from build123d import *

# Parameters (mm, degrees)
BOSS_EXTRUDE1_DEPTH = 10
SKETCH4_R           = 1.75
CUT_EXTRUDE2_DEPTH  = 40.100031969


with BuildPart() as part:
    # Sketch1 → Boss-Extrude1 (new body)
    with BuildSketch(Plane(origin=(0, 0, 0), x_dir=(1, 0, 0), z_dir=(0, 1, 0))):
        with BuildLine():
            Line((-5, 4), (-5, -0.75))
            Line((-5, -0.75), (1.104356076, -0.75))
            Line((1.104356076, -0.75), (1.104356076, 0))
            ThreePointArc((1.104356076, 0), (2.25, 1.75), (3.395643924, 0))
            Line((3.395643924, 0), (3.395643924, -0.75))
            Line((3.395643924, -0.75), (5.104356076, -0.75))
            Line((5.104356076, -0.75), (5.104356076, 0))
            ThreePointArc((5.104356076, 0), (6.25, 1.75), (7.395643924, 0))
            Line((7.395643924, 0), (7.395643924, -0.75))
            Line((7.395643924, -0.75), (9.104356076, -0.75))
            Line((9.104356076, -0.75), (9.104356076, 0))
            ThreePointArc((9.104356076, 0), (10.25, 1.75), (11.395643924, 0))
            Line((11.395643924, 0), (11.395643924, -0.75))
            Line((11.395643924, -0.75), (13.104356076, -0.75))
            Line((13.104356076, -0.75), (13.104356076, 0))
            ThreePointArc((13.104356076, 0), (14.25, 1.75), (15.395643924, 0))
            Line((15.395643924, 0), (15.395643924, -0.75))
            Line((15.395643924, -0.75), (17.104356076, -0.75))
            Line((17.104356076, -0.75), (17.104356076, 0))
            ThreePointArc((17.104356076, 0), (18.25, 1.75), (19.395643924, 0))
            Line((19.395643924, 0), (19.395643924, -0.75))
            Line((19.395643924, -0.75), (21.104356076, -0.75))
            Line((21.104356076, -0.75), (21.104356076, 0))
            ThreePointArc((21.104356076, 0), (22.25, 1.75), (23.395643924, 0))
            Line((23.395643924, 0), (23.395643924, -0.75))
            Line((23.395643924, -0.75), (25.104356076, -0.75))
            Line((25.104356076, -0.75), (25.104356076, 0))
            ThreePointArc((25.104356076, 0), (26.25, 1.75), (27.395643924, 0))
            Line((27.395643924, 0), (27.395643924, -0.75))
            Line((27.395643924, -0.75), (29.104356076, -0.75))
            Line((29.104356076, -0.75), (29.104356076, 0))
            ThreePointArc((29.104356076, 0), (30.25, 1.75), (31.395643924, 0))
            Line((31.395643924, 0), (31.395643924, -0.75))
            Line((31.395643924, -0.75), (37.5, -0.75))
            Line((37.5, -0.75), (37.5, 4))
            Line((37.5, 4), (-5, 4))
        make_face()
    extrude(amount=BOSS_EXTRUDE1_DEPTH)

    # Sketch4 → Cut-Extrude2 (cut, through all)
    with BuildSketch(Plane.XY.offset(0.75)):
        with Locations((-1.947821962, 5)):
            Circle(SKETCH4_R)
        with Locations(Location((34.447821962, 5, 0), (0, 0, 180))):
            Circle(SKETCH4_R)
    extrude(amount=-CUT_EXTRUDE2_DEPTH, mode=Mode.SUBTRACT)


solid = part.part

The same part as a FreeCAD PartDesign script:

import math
import FreeCAD as App
import Part
import Sketcher
from FreeCAD import Vector
Q = App.Units.Quantity

doc = App.newDocument("Part")
body = doc.addObject("PartDesign::Body", "Body")

sketch1 = doc.addObject("Sketcher::SketchObject", "Sketch")
body.addObject(sketch1)
sketch1.AttachmentSupport = (doc.XZ_Plane, [""])
sketch1.MapMode = "FlatFace"
sketch1.addGeometry(Part.LineSegment(Vector(-5, -4, 0), Vector(-5, 0.8, 0)), False)
sketch1.addGeometry(Part.LineSegment(Vector(-5, 0.8, 0), Vector(1.1, 0.8, 0)), False)
sketch1.addGeometry(Part.LineSegment(Vector(1.1, 0.8, 0), Vector(1.1, 0, 0)), False)
sketch1.addGeometry(Part.ArcOfCircle(Part.Circle(Vector(2.2, -0.5, 0), Vector(0, 0, 1), 1.2), math.radians(156), math.radians(384)), False)
sketch1.addGeometry(Part.LineSegment(Vector(3.4, 0, 0), Vector(3.4, 0.8, 0)), False)
sketch1.addGeometry(Part.LineSegment(Vector(3.4, 0.8, 0), Vector(5.1, 0.8, 0)), False)
sketch1.addGeometry(Part.LineSegment(Vector(5.1, 0.8, 0), Vector(5.1, 0, 0)), False)
sketch1.addGeometry(Part.ArcOfCircle(Part.Circle(Vector(6.2, -0.5, 0), Vector(0, 0, 1), 1.2), math.radians(156), math.radians(384)), False)
sketch1.addGeometry(Part.LineSegment(Vector(7.4, 0, 0), Vector(7.4, 0.8, 0)), False)
sketch1.addGeometry(Part.LineSegment(Vector(7.4, 0.8, 0), Vector(9.1, 0.8, 0)), False)
sketch1.addGeometry(Part.LineSegment(Vector(9.1, 0.8, 0), Vector(9.1, 0, 0)), False)
sketch1.addGeometry(Part.ArcOfCircle(Part.Circle(Vector(10.2, -0.5, 0), Vector(0, 0, 1), 1.2), math.radians(156), math.radians(384)), False)
sketch1.addGeometry(Part.LineSegment(Vector(11.4, 0, 0), Vector(11.4, 0.8, 0)), False)
sketch1.addGeometry(Part.LineSegment(Vector(11.4, 0.8, 0), Vector(13.1, 0.8, 0)), False)
sketch1.addGeometry(Part.LineSegment(Vector(13.1, 0.8, 0), Vector(13.1, 0, 0)), False)
sketch1.addGeometry(Part.ArcOfCircle(Part.Circle(Vector(14.2, -0.5, 0), Vector(0, 0, 1), 1.2), math.radians(156), math.radians(384)), False)
sketch1.addGeometry(Part.LineSegment(Vector(15.4, 0, 0), Vector(15.4, 0.8, 0)), False)
sketch1.addGeometry(Part.LineSegment(Vector(15.4, 0.8, 0), Vector(17.1, 0.8, 0)), False)
sketch1.addGeometry(Part.LineSegment(Vector(17.1, 0.8, 0), Vector(17.1, 0, 0)), False)
sketch1.addGeometry(Part.ArcOfCircle(Part.Circle(Vector(18.2, -0.5, 0), Vector(0, 0, 1), 1.2), math.radians(156), math.radians(384)), False)
sketch1.addGeometry(Part.LineSegment(Vector(19.4, 0, 0), Vector(19.4, 0.8, 0)), False)
sketch1.addGeometry(Part.LineSegment(Vector(19.4, 0.8, 0), Vector(21.1, 0.8, 0)), False)
sketch1.addGeometry(Part.LineSegment(Vector(21.1, 0.8, 0), Vector(21.1, 0, 0)), False)
sketch1.addGeometry(Part.ArcOfCircle(Part.Circle(Vector(22.2, -0.5, 0), Vector(0, 0, 1), 1.2), math.radians(156), math.radians(384)), False)
sketch1.addGeometry(Part.LineSegment(Vector(23.4, 0, 0), Vector(23.4, 0.8, 0)), False)
sketch1.addGeometry(Part.LineSegment(Vector(23.4, 0.8, 0), Vector(25.1, 0.8, 0)), False)
sketch1.addGeometry(Part.LineSegment(Vector(25.1, 0.8, 0), Vector(25.1, 0, 0)), False)
sketch1.addGeometry(Part.ArcOfCircle(Part.Circle(Vector(26.2, -0.5, 0), Vector(0, 0, 1), 1.2), math.radians(156), math.radians(384)), False)
sketch1.addGeometry(Part.LineSegment(Vector(27.4, 0, 0), Vector(27.4, 0.8, 0)), False)
sketch1.addGeometry(Part.LineSegment(Vector(27.4, 0.8, 0), Vector(29.1, 0.8, 0)), False)
sketch1.addGeometry(Part.LineSegment(Vector(29.1, 0.8, 0), Vector(29.1, 0, 0)), False)
sketch1.addGeometry(Part.ArcOfCircle(Part.Circle(Vector(30.2, -0.5, 0), Vector(0, 0, 1), 1.2), math.radians(156), math.radians(384)), False)
sketch1.addGeometry(Part.LineSegment(Vector(31.4, 0, 0), Vector(31.4, 0.8, 0)), False)
sketch1.addGeometry(Part.LineSegment(Vector(31.4, 0.8, 0), Vector(37.5, 0.8, 0)), False)
sketch1.addGeometry(Part.LineSegment(Vector(37.5, 0.8, 0), Vector(37.5, -4, 0)), False)
sketch1.addGeometry(Part.LineSegment(Vector(37.5, -4, 0), Vector(-5, -4, 0)), False)
sketch1.addConstraint(Sketcher.Constraint("Coincident", 0, 2, 1, 1))
sketch1.addConstraint(Sketcher.Constraint("Coincident", 1, 2, 2, 1))
sketch1.addConstraint(Sketcher.Constraint("Coincident", 2, 2, 3, 1))
sketch1.addConstraint(Sketcher.Constraint("Coincident", 3, 2, 4, 1))
sketch1.addConstraint(Sketcher.Constraint("Coincident", 4, 2, 5, 1))
sketch1.addConstraint(Sketcher.Constraint("Coincident", 5, 2, 6, 1))
sketch1.addConstraint(Sketcher.Constraint("Coincident", 6, 2, 7, 1))
sketch1.addConstraint(Sketcher.Constraint("Coincident", 7, 2, 8, 1))
sketch1.addConstraint(Sketcher.Constraint("Coincident", 8, 2, 9, 1))
sketch1.addConstraint(Sketcher.Constraint("Coincident", 9, 2, 10, 1))
sketch1.addConstraint(Sketcher.Constraint("Coincident", 10, 2, 11, 1))
sketch1.addConstraint(Sketcher.Constraint("Coincident", 11, 2, 12, 1))
sketch1.addConstraint(Sketcher.Constraint("Coincident", 12, 2, 13, 1))
sketch1.addConstraint(Sketcher.Constraint("Coincident", 13, 2, 14, 1))
sketch1.addConstraint(Sketcher.Constraint("Coincident", 14, 2, 15, 1))
sketch1.addConstraint(Sketcher.Constraint("Coincident", 15, 2, 16, 1))
sketch1.addConstraint(Sketcher.Constraint("Coincident", 16, 2, 17, 1))
sketch1.addConstraint(Sketcher.Constraint("Coincident", 17, 2, 18, 1))
sketch1.addConstraint(Sketcher.Constraint("Coincident", 18, 2, 19, 1))
sketch1.addConstraint(Sketcher.Constraint("Coincident", 19, 2, 20, 1))
sketch1.addConstraint(Sketcher.Constraint("Coincident", 20, 2, 21, 1))
sketch1.addConstraint(Sketcher.Constraint("Coincident", 21, 2, 22, 1))
sketch1.addConstraint(Sketcher.Constraint("Coincident", 22, 2, 23, 1))
sketch1.addConstraint(Sketcher.Constraint("Coincident", 23, 2, 24, 1))
sketch1.addConstraint(Sketcher.Constraint("Coincident", 24, 2, 25, 1))
sketch1.addConstraint(Sketcher.Constraint("Coincident", 25, 2, 26, 1))
sketch1.addConstraint(Sketcher.Constraint("Coincident", 26, 2, 27, 1))
sketch1.addConstraint(Sketcher.Constraint("Coincident", 27, 2, 28, 1))
sketch1.addConstraint(Sketcher.Constraint("Coincident", 28, 2, 29, 1))
sketch1.addConstraint(Sketcher.Constraint("Coincident", 29, 2, 30, 1))
sketch1.addConstraint(Sketcher.Constraint("Coincident", 30, 2, 31, 1))
sketch1.addConstraint(Sketcher.Constraint("Coincident", 31, 2, 32, 1))
sketch1.addConstraint(Sketcher.Constraint("Coincident", 32, 2, 33, 1))
sketch1.addConstraint(Sketcher.Constraint("Coincident", 33, 2, 34, 1))
sketch1.addConstraint(Sketcher.Constraint("Coincident", 34, 2, 35, 1))
sketch1.addConstraint(Sketcher.Constraint("Coincident", 35, 2, 0, 1))
sketch1.addConstraint(Sketcher.Constraint("Vertical", 0))
sketch1.addConstraint(Sketcher.Constraint("Horizontal", 1))
sketch1.addConstraint(Sketcher.Constraint("Vertical", 2))
sketch1.addConstraint(Sketcher.Constraint("Vertical", 4))
sketch1.addConstraint(Sketcher.Constraint("Horizontal", 5))
sketch1.addConstraint(Sketcher.Constraint("Vertical", 6))
sketch1.addConstraint(Sketcher.Constraint("Vertical", 8))
sketch1.addConstraint(Sketcher.Constraint("Horizontal", 9))
sketch1.addConstraint(Sketcher.Constraint("Vertical", 10))
sketch1.addConstraint(Sketcher.Constraint("Vertical", 12))
sketch1.addConstraint(Sketcher.Constraint("Horizontal", 13))
sketch1.addConstraint(Sketcher.Constraint("Vertical", 14))
sketch1.addConstraint(Sketcher.Constraint("Vertical", 16))
sketch1.addConstraint(Sketcher.Constraint("Horizontal", 17))
sketch1.addConstraint(Sketcher.Constraint("Vertical", 18))
sketch1.addConstraint(Sketcher.Constraint("Vertical", 20))
sketch1.addConstraint(Sketcher.Constraint("Horizontal", 21))
sketch1.addConstraint(Sketcher.Constraint("Vertical", 22))
sketch1.addConstraint(Sketcher.Constraint("Vertical", 24))
sketch1.addConstraint(Sketcher.Constraint("Horizontal", 25))
sketch1.addConstraint(Sketcher.Constraint("Vertical", 26))
sketch1.addConstraint(Sketcher.Constraint("Vertical", 28))
sketch1.addConstraint(Sketcher.Constraint("Horizontal", 29))
sketch1.addConstraint(Sketcher.Constraint("Vertical", 30))
sketch1.addConstraint(Sketcher.Constraint("Vertical", 32))
sketch1.addConstraint(Sketcher.Constraint("Horizontal", 33))
sketch1.addConstraint(Sketcher.Constraint("Vertical", 34))
sketch1.addConstraint(Sketcher.Constraint("Horizontal", 35))
sketch1.addConstraint(Sketcher.Constraint("Equal", 3, 7))
sketch1.addConstraint(Sketcher.Constraint("Equal", 7, 11))
sketch1.addConstraint(Sketcher.Constraint("Equal", 11, 15))
sketch1.addConstraint(Sketcher.Constraint("Equal", 15, 19))
sketch1.addConstraint(Sketcher.Constraint("Equal", 19, 23))
sketch1.addConstraint(Sketcher.Constraint("Equal", 23, 27))
sketch1.addConstraint(Sketcher.Constraint("Equal", 27, 31))
sketch1.addConstraint(Sketcher.Constraint("PointOnObject", 2, 2, -1))
sketch1.addConstraint(Sketcher.Constraint("PointOnObject", 3, 2, -1))
sketch1.addConstraint(Sketcher.Constraint("PointOnObject", 6, 2, -1))
sketch1.addConstraint(Sketcher.Constraint("PointOnObject", 7, 2, -1))
sketch1.addConstraint(Sketcher.Constraint("PointOnObject", 10, 2, -1))
sketch1.addConstraint(Sketcher.Constraint("PointOnObject", 11, 2, -1))
sketch1.addConstraint(Sketcher.Constraint("PointOnObject", 14, 2, -1))
sketch1.addConstraint(Sketcher.Constraint("PointOnObject", 15, 2, -1))
sketch1.addConstraint(Sketcher.Constraint("PointOnObject", 18, 2, -1))
sketch1.addConstraint(Sketcher.Constraint("PointOnObject", 19, 2, -1))
sketch1.addConstraint(Sketcher.Constraint("PointOnObject", 22, 2, -1))
sketch1.addConstraint(Sketcher.Constraint("PointOnObject", 23, 2, -1))
sketch1.addConstraint(Sketcher.Constraint("PointOnObject", 26, 2, -1))
sketch1.addConstraint(Sketcher.Constraint("PointOnObject", 27, 2, -1))
sketch1.addConstraint(Sketcher.Constraint("PointOnObject", 30, 2, -1))
sketch1.addConstraint(Sketcher.Constraint("PointOnObject", 31, 2, -1))
sketch1.addConstraint(Sketcher.Constraint("Horizontal", 3, 3, 7, 3))
sketch1.addConstraint(Sketcher.Constraint("Horizontal", 7, 3, 11, 3))
sketch1.addConstraint(Sketcher.Constraint("Horizontal", 11, 3, 15, 3))
sketch1.addConstraint(Sketcher.Constraint("Horizontal", 15, 3, 19, 3))
sketch1.addConstraint(Sketcher.Constraint("Horizontal", 19, 3, 23, 3))
sketch1.addConstraint(Sketcher.Constraint("Horizontal", 23, 3, 27, 3))
sketch1.addConstraint(Sketcher.Constraint("Horizontal", 27, 3, 31, 3))
sketch1.addConstraint(Sketcher.Constraint("Horizontal", 1, 2, 4, 2))
sketch1.addConstraint(Sketcher.Constraint("Horizontal", 5, 2, 8, 2))
sketch1.addConstraint(Sketcher.Constraint("Horizontal", 9, 2, 12, 2))
sketch1.addConstraint(Sketcher.Constraint("Horizontal", 13, 2, 16, 2))
sketch1.addConstraint(Sketcher.Constraint("Horizontal", 17, 2, 20, 2))
sketch1.addConstraint(Sketcher.Constraint("Horizontal", 21, 2, 24, 2))
sketch1.addConstraint(Sketcher.Constraint("Horizontal", 25, 2, 28, 2))
sketch1.addConstraint(Sketcher.Constraint("Horizontal", 29, 2, 32, 2))
sketch1.addConstraint(Sketcher.Constraint("Equal", 5, 9))
sketch1.addConstraint(Sketcher.Constraint("Equal", 9, 13))
sketch1.addConstraint(Sketcher.Constraint("Equal", 13, 17))
sketch1.addConstraint(Sketcher.Constraint("Equal", 17, 21))
sketch1.addConstraint(Sketcher.Constraint("Equal", 21, 25))
sketch1.addConstraint(Sketcher.Constraint("Equal", 25, 29))
sketch1.addConstraint(Sketcher.Constraint("Equal", 1, 33))
sketch1.addConstraint(Sketcher.Constraint("Radius", 3, Q("1.25 mm")))
sketch1.addConstraint(Sketcher.Constraint("DistanceX", 35, 2, 35, 1, Q("42.5 mm")))
sketch1.addConstraint(Sketcher.Constraint("DistanceX", 0, 2, -1, 1, Q("5 mm")))
sketch1.addConstraint(Sketcher.Constraint("DistanceY", 34, 2, -1, 1, Q("4 mm")))
sketch1.addConstraint(Sketcher.Constraint("DistanceX", 3, 3, 7, 3, Q("4 mm")))
sketch1.addConstraint(Sketcher.Constraint("DistanceY", 0, 1, 0, 2, Q("4.75 mm")))
sketch1.addConstraint(Sketcher.Constraint("DistanceY", 3, 3, -1, 1, Q("0.5 mm")))
pad1 = doc.addObject("PartDesign::Pad", "Pad")
body.addObject(pad1)
pad1.Profile = sketch1
pad1.Length = 10
pad1.Reversed = True

sketch2 = doc.addObject("Sketcher::SketchObject", "Sketch001")
body.addObject(sketch2)
sketch2.AttachmentSupport = (doc.XY_Plane, [""])
sketch2.MapMode = "FlatFace"
sketch2.AttachmentOffset = App.Placement(Vector(0, 0, 0.75), App.Rotation())
sketch2.addGeometry(Part.Circle(Vector(-1.9, 5, 0), Vector(0, 0, 1), 1.8), False)
sketch2.addGeometry(Part.Circle(Vector(34.4, 5, 0), Vector(0, 0, 1), 1.8), False)
sketch2.addConstraint(Sketcher.Constraint("Equal", 0, 1))
sketch2.addConstraint(Sketcher.Constraint("Horizontal", 0, 3, 1, 3))
sketch2.addConstraint(Sketcher.Constraint("Diameter", 0, Q("3.5 mm")))
sketch2.addConstraint(Sketcher.Constraint("DistanceY", -1, 1, 0, 3, Q("5 mm")))
sketch2.addConstraint(Sketcher.Constraint("DistanceX", 0, 3, -1, 1, Q("1.947822 mm")))
sketch2.addConstraint(Sketcher.Constraint("DistanceX", -1, 1, 1, 3, Q("34.447822 mm")))
pocket1 = doc.addObject("PartDesign::Pocket", "Pocket")
body.addObject(pocket1)
pocket1.Profile = sketch2
pocket1.Type = "ThroughAll"

doc.recompute()
